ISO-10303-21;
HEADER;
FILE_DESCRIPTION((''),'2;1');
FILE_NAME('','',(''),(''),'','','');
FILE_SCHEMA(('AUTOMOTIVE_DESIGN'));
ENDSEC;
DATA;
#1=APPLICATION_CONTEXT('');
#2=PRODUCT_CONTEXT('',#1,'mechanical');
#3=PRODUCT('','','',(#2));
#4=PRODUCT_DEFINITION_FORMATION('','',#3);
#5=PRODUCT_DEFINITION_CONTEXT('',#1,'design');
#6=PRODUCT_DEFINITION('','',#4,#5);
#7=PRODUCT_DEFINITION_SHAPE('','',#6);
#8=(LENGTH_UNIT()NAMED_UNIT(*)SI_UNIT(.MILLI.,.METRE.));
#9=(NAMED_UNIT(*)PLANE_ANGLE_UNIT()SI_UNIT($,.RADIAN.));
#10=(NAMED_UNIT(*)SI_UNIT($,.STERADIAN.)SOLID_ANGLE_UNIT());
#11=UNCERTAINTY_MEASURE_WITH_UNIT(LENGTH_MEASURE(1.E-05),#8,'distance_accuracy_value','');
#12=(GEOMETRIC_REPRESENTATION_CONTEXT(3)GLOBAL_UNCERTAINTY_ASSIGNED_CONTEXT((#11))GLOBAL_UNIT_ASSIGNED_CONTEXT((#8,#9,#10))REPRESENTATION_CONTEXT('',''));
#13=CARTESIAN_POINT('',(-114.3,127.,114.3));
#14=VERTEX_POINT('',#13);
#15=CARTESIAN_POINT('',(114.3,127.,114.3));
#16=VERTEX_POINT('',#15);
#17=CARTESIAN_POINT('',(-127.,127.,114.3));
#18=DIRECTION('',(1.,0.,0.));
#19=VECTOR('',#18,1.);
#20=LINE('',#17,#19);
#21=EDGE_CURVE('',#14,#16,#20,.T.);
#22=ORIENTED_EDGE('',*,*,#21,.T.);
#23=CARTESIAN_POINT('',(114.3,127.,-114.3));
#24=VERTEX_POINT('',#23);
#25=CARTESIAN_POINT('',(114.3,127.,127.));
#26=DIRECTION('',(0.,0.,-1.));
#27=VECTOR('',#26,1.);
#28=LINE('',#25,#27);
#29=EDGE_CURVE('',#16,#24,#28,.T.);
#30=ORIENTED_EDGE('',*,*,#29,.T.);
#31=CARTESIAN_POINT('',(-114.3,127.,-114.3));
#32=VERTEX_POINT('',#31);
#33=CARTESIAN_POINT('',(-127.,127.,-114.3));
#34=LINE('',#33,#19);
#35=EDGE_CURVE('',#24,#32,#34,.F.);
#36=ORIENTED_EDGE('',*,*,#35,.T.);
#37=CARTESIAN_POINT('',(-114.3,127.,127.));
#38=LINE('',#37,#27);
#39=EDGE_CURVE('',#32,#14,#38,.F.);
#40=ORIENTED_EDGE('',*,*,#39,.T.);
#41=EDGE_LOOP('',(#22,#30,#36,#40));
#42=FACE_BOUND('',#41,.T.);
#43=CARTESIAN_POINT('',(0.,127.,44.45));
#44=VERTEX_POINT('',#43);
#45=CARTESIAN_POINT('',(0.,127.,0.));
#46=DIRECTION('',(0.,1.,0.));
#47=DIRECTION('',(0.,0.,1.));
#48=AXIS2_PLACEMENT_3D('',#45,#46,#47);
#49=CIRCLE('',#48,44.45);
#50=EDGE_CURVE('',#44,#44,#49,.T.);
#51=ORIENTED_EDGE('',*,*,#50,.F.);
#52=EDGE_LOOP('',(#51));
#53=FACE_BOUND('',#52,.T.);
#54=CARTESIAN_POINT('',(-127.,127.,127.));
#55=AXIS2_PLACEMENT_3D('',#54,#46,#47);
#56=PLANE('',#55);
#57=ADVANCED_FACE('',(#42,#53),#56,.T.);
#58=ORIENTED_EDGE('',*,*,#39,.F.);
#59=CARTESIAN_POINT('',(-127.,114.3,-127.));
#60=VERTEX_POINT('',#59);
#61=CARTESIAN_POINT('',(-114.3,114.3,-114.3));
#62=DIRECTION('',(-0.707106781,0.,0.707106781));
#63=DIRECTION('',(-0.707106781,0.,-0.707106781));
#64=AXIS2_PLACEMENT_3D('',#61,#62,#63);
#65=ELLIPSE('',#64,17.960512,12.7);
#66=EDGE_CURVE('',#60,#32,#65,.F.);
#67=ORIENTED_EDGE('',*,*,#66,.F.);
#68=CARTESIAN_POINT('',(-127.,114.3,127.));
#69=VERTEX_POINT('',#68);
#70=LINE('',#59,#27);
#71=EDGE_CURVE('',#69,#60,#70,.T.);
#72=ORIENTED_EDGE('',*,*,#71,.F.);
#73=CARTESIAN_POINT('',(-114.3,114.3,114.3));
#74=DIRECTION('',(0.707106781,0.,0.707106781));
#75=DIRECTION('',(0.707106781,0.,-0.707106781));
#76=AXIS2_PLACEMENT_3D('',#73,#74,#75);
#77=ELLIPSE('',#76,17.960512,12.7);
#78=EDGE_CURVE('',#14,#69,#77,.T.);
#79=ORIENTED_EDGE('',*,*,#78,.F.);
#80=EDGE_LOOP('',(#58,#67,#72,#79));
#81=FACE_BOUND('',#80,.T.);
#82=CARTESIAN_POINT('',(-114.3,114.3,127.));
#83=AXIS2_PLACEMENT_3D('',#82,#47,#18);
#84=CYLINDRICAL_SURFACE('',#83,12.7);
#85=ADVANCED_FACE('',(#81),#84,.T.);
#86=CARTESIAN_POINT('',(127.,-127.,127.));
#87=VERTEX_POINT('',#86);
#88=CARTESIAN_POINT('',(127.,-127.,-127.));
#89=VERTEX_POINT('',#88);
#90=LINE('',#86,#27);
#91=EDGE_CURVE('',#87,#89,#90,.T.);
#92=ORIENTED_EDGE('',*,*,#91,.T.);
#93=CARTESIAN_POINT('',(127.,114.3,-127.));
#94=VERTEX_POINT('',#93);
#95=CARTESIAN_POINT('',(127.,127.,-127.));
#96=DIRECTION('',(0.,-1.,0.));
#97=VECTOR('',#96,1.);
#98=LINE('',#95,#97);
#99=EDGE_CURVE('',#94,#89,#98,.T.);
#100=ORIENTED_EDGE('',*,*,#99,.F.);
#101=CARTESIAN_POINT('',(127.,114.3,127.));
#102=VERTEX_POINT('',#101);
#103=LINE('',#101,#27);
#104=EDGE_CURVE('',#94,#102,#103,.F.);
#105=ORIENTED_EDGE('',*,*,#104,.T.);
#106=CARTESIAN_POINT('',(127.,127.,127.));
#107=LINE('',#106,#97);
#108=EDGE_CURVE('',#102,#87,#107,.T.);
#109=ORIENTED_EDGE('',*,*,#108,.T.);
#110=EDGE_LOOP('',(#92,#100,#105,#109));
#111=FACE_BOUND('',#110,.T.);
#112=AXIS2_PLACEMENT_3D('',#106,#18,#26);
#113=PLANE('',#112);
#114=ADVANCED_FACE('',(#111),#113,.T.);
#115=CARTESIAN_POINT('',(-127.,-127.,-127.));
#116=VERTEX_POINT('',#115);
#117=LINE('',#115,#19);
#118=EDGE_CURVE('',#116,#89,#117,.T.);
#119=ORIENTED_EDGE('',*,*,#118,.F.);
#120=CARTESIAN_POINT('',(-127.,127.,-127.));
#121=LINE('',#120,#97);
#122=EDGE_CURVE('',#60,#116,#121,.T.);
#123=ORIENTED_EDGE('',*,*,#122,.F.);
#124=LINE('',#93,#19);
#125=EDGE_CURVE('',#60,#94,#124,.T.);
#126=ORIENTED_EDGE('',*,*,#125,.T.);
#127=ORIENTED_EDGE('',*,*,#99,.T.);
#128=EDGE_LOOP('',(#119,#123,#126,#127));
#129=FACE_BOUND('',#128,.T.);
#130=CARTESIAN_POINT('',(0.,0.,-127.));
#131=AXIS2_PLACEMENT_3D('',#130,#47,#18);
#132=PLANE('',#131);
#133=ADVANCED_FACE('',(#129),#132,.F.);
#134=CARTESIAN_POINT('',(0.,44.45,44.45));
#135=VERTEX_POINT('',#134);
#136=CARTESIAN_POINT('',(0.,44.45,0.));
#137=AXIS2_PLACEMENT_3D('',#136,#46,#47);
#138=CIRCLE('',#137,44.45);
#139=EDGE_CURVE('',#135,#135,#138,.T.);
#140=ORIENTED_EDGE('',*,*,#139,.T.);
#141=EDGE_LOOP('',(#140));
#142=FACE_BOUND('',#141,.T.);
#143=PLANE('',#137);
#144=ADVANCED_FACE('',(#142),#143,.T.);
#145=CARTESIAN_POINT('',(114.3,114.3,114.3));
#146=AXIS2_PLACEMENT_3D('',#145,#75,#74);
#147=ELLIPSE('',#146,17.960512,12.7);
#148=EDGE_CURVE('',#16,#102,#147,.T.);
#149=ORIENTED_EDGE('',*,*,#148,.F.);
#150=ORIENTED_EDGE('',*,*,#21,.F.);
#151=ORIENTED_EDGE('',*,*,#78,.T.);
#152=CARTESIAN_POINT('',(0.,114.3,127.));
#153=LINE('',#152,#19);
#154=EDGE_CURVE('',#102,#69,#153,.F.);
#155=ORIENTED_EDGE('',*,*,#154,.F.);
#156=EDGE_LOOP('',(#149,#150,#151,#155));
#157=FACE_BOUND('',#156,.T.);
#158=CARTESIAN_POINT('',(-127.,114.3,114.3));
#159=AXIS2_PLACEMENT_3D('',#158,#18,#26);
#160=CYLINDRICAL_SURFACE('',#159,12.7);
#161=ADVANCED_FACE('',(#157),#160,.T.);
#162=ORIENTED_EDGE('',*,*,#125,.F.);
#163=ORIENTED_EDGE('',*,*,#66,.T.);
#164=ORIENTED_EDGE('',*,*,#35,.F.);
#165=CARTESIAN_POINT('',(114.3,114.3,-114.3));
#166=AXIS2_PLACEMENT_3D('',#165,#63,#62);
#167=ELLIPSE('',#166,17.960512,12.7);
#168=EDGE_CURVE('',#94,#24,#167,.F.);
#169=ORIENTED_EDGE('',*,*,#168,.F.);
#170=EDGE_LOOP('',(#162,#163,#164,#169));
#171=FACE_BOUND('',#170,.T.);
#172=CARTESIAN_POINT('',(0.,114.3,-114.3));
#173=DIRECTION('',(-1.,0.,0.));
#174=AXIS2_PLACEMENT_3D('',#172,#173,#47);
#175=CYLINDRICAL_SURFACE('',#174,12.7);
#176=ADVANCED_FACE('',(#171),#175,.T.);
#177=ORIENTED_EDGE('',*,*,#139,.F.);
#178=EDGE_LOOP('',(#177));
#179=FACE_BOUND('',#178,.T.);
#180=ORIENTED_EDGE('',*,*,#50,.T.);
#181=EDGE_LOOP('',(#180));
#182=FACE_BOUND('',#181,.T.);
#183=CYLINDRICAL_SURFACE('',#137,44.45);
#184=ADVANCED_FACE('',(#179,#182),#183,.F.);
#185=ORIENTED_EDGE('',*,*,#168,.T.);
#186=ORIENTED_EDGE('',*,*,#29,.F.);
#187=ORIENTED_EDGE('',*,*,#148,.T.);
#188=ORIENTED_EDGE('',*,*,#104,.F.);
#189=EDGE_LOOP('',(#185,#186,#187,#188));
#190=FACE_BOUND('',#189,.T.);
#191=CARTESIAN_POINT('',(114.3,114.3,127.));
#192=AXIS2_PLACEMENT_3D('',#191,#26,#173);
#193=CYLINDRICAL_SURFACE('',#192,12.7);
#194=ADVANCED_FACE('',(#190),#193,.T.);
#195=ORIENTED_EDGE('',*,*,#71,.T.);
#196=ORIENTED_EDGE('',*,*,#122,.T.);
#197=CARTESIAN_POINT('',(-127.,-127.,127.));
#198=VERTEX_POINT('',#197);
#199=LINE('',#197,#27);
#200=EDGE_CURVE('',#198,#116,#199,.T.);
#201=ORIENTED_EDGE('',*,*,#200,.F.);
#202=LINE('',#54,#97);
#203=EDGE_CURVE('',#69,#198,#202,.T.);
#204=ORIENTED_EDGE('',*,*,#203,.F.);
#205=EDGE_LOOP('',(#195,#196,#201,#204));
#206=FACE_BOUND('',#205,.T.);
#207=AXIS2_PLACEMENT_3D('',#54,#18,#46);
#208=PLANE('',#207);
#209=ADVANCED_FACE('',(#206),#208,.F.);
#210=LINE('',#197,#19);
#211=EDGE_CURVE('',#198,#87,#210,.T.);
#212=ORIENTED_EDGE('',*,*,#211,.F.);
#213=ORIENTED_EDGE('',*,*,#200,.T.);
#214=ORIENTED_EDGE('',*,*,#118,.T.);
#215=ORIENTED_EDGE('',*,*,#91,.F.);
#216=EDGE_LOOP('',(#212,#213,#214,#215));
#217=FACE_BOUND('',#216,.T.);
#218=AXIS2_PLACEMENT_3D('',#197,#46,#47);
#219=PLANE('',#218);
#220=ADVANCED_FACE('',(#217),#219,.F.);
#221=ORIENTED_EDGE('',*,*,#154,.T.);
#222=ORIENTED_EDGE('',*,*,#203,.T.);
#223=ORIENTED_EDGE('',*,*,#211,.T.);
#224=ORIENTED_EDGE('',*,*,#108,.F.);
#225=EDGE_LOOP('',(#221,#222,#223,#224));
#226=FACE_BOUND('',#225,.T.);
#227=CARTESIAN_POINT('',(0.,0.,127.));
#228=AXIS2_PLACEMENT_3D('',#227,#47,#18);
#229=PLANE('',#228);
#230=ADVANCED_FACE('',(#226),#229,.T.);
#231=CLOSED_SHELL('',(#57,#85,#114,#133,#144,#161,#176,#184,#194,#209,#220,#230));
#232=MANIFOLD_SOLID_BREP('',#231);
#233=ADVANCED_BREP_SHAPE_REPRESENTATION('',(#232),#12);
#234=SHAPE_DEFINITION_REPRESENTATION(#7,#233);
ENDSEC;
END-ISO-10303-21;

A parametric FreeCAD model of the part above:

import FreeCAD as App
import Part
import Sketcher
from FreeCAD import Vector
Q = App.Units.Quantity


def edges_at(feature, points):
    """Names of the edges that pass closest to the given points."""
    edges = feature.Shape.Edges
    near = lambda p: min(range(len(edges)), key=lambda i: edges[i].distToShape(Part.Vertex(*p))[0])
    return sorted({f"Edge{near(p) + 1}" for p in points})


def add_polygon(sketch, points):
    """Adds a closed chain of lines whose ends are joined by coincident constraints."""
    first, n = sketch.GeometryCount, len(points)
    for a, b in zip(points, points[1:] + points[:1]):
        sketch.addGeometry(Part.LineSegment(App.Vector(*a, 0), App.Vector(*b, 0)), False)
    for i in range(n):
        sketch.addConstraint(Sketcher.Constraint("Coincident", first + i, 2, first + (i + 1) % n, 1))

doc = App.newDocument("Part")
body = doc.addObject("PartDesign::Body", "Body")

sketch1 = body.newObject("Sketcher::SketchObject", "Sketch")
sketch1.AttachmentSupport = (doc.getObject("XY_Plane"), [""])
sketch1.MapMode = "FlatFace"
add_polygon(sketch1, [(-127, 127), (-127, -127), (127, -127), (127, 127)])
sketch1.addConstraint(Sketcher.Constraint("Vertical", 0))
sketch1.addConstraint(Sketcher.Constraint("Horizontal", 1))
sketch1.addConstraint(Sketcher.Constraint("Vertical", 2))
sketch1.addConstraint(Sketcher.Constraint("Horizontal", 3))
sketch1.addConstraint(Sketcher.Constraint("Symmetric", 0, 2, 2, 2, -1, 1))
sketch1.addConstraint(Sketcher.Constraint("Equal", 3, 0))
sketch1.addConstraint(Sketcher.Constraint("DistanceX", 1, 1, 1, 2, Q("10 in")))
pad1 = body.newObject("PartDesign::Pad", "Pad")
pad1.Profile = sketch1
pad1.Length = Q("10 in")
pad1.Midplane = True

sketch2 = body.newObject("Sketcher::SketchObject", "Sketch001")
sketch2.AttachmentSupport = (doc.getObject("XZ_Plane"), [""])
sketch2.MapMode = "FlatFace"
sketch2.AttachmentOffset = App.Placement(Vector(0, 0, -5 * 25.4), App.Rotation())
sketch2.addGeometry(Part.Circle(Vector(0, 0, 0), Vector(0, 0, 1), 44), False)
sketch2.addConstraint(Sketcher.Constraint("Coincident", 0, 3, -1, 1))
sketch2.addConstraint(Sketcher.Constraint("Diameter", 0, Q("3.5 in")))
pocket1 = body.newObject("PartDesign::Pocket", "Pocket")
pocket1.Profile = sketch2
pocket1.Length = Q("3.25 in")
pocket1.Reversed = True
doc.recompute()

fillet = body.newObject("PartDesign::Fillet", "Fillet")
fillet.Base = (pocket1, edges_at(pocket1, [
    (0, 127, 127),
    (0, 127, -127),
    (-127, 127, 0),
    (127, 127, 0),
]))
fillet.Radius = Q("0.5 in")

doc.recompute()
